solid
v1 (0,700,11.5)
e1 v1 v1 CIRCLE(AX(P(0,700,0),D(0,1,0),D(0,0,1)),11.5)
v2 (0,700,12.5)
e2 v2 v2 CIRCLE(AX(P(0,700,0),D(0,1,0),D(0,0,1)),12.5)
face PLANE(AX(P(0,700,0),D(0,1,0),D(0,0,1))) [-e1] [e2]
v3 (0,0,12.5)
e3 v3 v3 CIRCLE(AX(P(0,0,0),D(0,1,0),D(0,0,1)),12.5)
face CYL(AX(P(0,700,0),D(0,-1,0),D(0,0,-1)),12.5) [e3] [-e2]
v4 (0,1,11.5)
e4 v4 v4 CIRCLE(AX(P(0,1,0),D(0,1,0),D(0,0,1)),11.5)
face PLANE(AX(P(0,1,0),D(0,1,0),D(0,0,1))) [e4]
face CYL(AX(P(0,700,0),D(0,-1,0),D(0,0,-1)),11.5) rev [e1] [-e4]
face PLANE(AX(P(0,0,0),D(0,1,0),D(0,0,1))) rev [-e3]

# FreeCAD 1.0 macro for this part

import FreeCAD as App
import Part
import Sketcher
Q = App.Units.Quantity


def faces_at(feature, points):
    """Names of the faces that lie closest to the given points."""
    faces = feature.Shape.Faces
    near = lambda p: min(range(len(faces)), key=lambda i: faces[i].distToShape(Part.Vertex(*p))[0])
    return sorted({f"Face{near(p) + 1}" for p in points})

doc = App.newDocument("Part")
body = doc.addObject("PartDesign::Body", "Body")

# Sketch on XZ plane
sketch1 = body.newObject("Sketcher::SketchObject", "Sketch")
sketch1.AttachmentSupport = (doc.getObject("XZ_Plane"), [""])
sketch1.MapMode = "FlatFace"
sketch1.addGeometry(Part.Circle(App.Vector(0, 0, 0), App.Vector(0, 0, 1), 12), False)
sketch1.addConstraint([
    Sketcher.Constraint("Coincident", 0, 3, -1, 1),
    Sketcher.Constraint("Diameter", 0, Q("25 mm")),
])
pad1 = body.newObject("PartDesign::Pad", "Pad")
pad1.Profile = sketch1
pad1.Length = 700
pad1.Reversed = True
doc.recompute()

thickness = body.newObject("PartDesign::Thickness", "Thickness")
thickness.Base = (pad1, faces_at(pad1, [(0, 700, 0)]))
thickness.Value = 1
thickness.Reversed = True
thickness.Join = "Intersection"

doc.recompute()
